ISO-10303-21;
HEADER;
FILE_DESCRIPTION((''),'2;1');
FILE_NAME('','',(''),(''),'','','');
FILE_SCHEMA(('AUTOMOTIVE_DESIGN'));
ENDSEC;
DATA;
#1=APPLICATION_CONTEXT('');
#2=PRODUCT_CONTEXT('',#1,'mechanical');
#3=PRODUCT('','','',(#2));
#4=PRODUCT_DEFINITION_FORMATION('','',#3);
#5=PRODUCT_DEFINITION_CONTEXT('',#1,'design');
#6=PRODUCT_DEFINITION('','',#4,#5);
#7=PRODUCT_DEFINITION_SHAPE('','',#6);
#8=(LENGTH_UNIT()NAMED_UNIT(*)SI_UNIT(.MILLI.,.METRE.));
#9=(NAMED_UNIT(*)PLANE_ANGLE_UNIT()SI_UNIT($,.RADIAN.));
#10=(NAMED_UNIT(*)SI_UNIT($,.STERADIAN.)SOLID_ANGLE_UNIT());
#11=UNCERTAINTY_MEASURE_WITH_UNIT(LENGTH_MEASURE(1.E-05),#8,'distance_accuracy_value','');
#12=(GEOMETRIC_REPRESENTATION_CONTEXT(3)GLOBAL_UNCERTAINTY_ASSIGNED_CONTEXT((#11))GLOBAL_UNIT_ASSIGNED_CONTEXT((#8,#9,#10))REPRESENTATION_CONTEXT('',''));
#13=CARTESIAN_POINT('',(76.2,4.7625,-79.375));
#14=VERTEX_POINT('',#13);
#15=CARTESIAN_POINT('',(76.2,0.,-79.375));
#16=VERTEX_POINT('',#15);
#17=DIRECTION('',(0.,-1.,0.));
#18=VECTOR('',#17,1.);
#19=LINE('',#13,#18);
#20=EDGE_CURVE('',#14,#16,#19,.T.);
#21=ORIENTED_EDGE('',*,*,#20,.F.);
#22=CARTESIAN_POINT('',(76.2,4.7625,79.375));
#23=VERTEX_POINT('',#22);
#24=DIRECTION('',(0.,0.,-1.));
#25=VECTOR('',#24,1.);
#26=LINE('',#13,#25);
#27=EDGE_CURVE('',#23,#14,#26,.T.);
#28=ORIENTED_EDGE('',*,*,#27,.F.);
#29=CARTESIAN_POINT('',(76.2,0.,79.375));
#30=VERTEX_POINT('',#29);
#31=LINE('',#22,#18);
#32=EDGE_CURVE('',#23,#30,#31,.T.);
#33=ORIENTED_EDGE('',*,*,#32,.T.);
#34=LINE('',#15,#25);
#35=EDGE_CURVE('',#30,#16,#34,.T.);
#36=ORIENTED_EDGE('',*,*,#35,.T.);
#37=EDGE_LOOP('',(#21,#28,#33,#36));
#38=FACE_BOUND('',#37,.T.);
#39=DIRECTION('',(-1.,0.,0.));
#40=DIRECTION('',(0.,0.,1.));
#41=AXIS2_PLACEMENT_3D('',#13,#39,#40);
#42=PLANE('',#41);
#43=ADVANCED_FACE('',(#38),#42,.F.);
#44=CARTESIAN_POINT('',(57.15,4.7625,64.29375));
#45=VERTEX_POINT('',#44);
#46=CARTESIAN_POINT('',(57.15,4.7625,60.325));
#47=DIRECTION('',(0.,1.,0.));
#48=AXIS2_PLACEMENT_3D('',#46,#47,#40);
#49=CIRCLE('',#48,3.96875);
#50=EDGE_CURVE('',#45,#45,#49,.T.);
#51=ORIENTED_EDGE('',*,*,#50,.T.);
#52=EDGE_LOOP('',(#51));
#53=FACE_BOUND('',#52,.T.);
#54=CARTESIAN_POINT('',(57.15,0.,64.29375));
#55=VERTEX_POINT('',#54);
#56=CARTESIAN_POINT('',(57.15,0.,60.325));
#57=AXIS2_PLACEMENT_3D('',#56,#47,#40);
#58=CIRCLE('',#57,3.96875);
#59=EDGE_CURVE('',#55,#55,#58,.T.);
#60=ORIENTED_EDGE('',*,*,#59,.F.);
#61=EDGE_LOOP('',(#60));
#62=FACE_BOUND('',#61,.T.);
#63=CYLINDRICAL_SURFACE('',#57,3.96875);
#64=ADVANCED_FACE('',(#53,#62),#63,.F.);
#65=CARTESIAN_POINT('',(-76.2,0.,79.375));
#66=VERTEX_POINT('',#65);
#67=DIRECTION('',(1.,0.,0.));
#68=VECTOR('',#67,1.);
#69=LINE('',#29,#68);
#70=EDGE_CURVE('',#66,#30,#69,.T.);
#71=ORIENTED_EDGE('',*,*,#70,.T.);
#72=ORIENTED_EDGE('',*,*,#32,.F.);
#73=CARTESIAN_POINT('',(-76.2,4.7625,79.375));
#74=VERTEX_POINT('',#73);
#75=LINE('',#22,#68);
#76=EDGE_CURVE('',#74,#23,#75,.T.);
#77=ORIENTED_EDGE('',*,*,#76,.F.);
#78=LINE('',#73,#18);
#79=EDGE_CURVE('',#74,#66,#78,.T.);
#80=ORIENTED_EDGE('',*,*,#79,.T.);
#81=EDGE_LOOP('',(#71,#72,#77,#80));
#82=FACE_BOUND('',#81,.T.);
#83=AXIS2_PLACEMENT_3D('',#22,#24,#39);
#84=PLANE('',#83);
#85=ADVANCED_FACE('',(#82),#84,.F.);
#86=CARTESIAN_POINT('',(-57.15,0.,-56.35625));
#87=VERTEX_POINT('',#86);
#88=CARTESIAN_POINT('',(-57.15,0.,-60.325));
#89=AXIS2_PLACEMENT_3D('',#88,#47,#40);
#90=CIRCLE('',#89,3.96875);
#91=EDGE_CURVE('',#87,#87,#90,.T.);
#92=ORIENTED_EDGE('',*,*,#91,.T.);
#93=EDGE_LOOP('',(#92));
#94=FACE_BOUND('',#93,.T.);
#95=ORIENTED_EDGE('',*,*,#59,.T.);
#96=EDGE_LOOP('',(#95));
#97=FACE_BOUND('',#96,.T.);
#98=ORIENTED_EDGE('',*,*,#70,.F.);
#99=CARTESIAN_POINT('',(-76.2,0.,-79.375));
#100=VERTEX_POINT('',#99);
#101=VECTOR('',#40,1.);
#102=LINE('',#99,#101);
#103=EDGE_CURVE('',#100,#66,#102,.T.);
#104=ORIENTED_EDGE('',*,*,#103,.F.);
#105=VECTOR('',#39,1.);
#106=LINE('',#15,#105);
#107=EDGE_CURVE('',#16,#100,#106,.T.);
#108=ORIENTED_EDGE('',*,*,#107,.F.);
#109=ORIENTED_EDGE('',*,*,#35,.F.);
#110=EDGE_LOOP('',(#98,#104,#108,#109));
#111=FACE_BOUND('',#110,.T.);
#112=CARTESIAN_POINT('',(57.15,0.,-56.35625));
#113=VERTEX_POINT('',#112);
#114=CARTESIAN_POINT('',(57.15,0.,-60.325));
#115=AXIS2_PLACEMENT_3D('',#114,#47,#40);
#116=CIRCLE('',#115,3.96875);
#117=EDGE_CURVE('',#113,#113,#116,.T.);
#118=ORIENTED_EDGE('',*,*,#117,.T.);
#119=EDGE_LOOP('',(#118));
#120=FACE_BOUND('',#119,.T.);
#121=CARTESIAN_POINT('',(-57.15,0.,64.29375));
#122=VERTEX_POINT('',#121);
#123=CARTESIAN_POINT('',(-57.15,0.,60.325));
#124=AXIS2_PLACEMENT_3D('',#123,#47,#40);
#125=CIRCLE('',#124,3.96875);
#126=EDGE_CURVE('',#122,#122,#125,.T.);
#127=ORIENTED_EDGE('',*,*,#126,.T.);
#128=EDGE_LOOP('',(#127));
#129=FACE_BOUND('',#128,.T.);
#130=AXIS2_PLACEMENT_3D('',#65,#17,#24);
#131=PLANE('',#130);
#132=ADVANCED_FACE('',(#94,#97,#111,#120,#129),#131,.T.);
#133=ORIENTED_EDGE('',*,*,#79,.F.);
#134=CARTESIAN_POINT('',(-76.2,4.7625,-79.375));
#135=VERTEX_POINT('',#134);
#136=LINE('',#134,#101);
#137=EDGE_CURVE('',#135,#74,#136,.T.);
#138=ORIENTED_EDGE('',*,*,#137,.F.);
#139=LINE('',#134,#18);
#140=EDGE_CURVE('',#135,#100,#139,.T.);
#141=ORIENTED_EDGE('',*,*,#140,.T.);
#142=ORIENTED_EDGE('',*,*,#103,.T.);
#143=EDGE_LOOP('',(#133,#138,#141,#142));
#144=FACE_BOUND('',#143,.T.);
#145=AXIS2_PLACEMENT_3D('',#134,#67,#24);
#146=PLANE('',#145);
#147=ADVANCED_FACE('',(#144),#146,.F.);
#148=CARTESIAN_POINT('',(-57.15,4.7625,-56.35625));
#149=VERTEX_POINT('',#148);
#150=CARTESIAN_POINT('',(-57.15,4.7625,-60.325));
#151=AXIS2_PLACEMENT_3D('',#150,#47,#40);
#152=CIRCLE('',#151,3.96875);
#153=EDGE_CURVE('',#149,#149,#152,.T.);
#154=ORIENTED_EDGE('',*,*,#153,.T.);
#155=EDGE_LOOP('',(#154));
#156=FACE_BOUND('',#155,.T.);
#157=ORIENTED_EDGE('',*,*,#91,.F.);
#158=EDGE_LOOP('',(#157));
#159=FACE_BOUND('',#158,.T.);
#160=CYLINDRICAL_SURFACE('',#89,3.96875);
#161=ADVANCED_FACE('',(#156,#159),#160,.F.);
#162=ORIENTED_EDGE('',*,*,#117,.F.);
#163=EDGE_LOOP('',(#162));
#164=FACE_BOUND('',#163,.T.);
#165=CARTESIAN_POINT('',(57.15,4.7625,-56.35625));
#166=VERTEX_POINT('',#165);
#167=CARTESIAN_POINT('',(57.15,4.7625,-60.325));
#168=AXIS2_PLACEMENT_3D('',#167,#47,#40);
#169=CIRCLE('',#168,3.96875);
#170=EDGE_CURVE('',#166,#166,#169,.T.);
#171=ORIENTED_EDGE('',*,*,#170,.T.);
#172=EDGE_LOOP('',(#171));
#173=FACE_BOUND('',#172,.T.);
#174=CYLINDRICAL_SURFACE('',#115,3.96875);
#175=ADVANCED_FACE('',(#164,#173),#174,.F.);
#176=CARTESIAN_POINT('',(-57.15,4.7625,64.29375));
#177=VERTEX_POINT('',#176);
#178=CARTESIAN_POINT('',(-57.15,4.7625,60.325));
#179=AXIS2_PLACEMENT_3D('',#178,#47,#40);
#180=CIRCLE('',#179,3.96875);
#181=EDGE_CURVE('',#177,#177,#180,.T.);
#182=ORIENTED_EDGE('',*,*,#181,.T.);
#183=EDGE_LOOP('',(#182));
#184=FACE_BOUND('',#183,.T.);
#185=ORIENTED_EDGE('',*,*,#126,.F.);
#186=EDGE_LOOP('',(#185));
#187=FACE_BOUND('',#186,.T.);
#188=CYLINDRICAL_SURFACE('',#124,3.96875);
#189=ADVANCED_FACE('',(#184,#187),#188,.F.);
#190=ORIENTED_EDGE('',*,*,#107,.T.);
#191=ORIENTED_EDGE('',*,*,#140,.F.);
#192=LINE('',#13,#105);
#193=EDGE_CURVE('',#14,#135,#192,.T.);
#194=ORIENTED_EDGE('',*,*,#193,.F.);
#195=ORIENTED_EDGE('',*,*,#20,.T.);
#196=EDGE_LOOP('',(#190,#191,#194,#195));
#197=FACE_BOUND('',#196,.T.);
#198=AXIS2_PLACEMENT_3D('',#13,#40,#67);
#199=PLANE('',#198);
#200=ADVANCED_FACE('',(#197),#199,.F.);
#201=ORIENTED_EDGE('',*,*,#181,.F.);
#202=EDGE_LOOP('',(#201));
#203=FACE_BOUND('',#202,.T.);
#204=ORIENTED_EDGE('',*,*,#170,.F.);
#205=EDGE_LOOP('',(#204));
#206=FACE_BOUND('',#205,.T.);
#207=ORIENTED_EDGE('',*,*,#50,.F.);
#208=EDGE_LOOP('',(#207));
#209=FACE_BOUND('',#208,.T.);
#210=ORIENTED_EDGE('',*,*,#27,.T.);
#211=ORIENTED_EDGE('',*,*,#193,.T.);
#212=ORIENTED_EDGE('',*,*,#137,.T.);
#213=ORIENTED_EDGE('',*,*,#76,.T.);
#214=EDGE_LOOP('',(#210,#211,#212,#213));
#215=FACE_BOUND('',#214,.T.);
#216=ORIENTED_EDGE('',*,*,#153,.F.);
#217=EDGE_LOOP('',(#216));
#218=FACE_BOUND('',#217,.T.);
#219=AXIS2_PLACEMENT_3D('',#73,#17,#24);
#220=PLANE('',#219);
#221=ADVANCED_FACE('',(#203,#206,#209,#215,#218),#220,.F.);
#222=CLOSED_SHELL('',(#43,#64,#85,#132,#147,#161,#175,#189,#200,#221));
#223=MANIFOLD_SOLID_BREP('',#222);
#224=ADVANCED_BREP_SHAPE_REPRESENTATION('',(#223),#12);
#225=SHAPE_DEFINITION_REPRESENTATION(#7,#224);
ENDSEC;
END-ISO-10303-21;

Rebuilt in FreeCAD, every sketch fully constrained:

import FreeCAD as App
import Part
import Sketcher

V = App.Vector
Q = App.Units.Quantity


def add_polygon(sketch, points):
    """Adds a closed chain of lines whose ends are joined by coincident constraints."""
    first, n = sketch.GeometryCount, len(points)
    for a, b in zip(points, points[1:] + points[:1]):
        sketch.addGeometry(Part.LineSegment(App.Vector(*a, 0), App.Vector(*b, 0)), False)
    for i in range(n):
        sketch.addConstraint(Sketcher.Constraint("Coincident", first + i, 2, first + (i + 1) % n, 1))

doc = App.newDocument("Part")
body = doc.addObject("PartDesign::Body", "Body")

# Sketch on XZ plane
sketch1 = body.newObject("Sketcher::SketchObject", "Sketch")
sketch1.AttachmentSupport = (doc.getObject("XZ_Plane"), [""])
sketch1.MapMode = "FlatFace"
add_polygon(sketch1, [(-76.2, -79.375), (-76.2, 79.375), (76.2, 79.375), (76.2, -79.375)])  # lines 0-3
sketch1.addConstraint([
    Sketcher.Constraint("Vertical", 0),
    Sketcher.Constraint("Horizontal", 1),
    Sketcher.Constraint("Vertical", 2),
    Sketcher.Constraint("Horizontal", 3),
    Sketcher.Constraint("Symmetric", 0, 2, 2, 2, -1, 1),
    Sketcher.Constraint("DistanceX", 1, 1, 1, 2, Q("6 in")),
    Sketcher.Constraint("DistanceY", 0, 1, 0, 2, Q("6.25 in")),
])
pad1 = body.newObject("PartDesign::Pad", "Pad")
pad1.Profile = sketch1
pad1.Length = Q("0.1875 in")
pad1.Reversed = True

# Sketch on XZ plane
sketch2 = body.newObject("Sketcher::SketchObject", "Sketch001")
sketch2.AttachmentSupport = (doc.getObject("XZ_Plane"), [""])
sketch2.MapMode = "FlatFace"
sketch2.AttachmentOffset = App.Placement(V(0, 0, -0.1875 * 25.4), App.Rotation())
sketch2.addGeometry([
    Part.Circle(V(-57.15, -60.325, 0), V(0, 0, 1), 3.96875),
    Part.Circle(V(57.15, -60.325, 0), V(0, 0, 1), 3.96875),
    Part.Circle(V(-57.15, 60.325, 0), V(0, 0, 1), 3.96875),
    Part.Circle(V(57.15, 60.325, 0), V(0, 0, 1), 3.96875),
], False)
sketch2.addConstraint([
    Sketcher.Constraint("Equal", 0, 1),
    Sketcher.Constraint("Equal", 1, 2),
    Sketcher.Constraint("Equal", 2, 3),
    Sketcher.Constraint("Symmetric", 1, 3, 2, 3, -1, 1),
    Sketcher.Constraint("Symmetric", 0, 3, 3, 3, -1, 1),
    Sketcher.Constraint("Symmetric", 0, 3, 1, 3, -2),
    Sketcher.Constraint("Diameter", 0, Q("0.3125 in")),
    Sketcher.Constraint("DistanceX", 0, 3, 1, 3, Q("4.5 in")),
    Sketcher.Constraint("DistanceY", 0, 3, 2, 3, Q("4.75 in")),
])
pocket1 = body.newObject("PartDesign::Pocket", "Pocket")
pocket1.Profile = sketch2
pocket1.Type = "ThroughAll"
pocket1.Reversed = True

doc.recompute()
